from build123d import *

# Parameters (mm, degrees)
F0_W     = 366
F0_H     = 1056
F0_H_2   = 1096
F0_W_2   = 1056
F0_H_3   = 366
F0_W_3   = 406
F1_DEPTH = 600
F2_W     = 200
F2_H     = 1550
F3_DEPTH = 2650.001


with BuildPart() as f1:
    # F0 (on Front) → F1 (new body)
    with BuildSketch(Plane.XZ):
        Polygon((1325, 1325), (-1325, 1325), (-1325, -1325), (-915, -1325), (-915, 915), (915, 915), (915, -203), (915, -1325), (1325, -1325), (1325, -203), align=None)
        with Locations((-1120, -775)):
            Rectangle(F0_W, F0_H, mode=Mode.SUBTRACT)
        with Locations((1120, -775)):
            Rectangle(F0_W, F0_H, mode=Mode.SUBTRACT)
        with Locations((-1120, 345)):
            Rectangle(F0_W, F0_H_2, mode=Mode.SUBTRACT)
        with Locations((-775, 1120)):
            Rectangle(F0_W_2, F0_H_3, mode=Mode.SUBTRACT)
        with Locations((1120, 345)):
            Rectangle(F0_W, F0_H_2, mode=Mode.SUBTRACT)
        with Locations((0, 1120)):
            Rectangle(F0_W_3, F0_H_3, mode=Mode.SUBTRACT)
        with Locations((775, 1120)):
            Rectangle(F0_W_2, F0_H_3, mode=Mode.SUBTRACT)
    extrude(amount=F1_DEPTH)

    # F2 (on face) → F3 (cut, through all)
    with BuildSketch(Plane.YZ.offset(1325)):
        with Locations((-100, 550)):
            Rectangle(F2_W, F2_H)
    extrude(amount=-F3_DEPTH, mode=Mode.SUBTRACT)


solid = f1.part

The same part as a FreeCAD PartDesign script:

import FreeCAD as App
import Part
import Sketcher
Q = App.Units.Quantity

doc = App.newDocument("Part")
params = doc.addObject("Spreadsheet::Sheet", "Params")
for row, (alias, value) in enumerate([
    ("sketch1_width", "2650 mm"),
    ("sketch1_width2", "410 mm"),
    ("sketch1_width3", "366 mm"),
    ("sketch1_width4", "1056 mm"),
    ("sketch1_width5", "406 mm"),
    ("pad1_length", "600 mm"),
    ("sketch2_width", "200 mm"),
    ("sketch2_height", "1550 mm"),
], start=1):
    params.set(f"A{row}", alias)
    params.set(f"B{row}", "=" + value)
    params.setAlias(f"B{row}", alias)

body = doc.addObject("PartDesign::Body", "Body")

# Sketch on XZ plane
sketch1 = doc.addObject("Sketcher::SketchObject", "Sketch")
body.addObject(sketch1)
sketch1.AttachmentSupport = (doc.XZ_Plane, [""])
sketch1.MapMode = "FlatFace"
sketch1.addGeometry(Part.LineSegment(App.Vector(1325, 1325, 0), App.Vector(-1325, 1325, 0)), False)
sketch1.addGeometry(Part.LineSegment(App.Vector(-1325, 1325, 0), App.Vector(-1325, -1325, 0)), False)
sketch1.addGeometry(Part.LineSegment(App.Vector(-1325, -1325, 0), App.Vector(-915, -1325, 0)), False)
sketch1.addGeometry(Part.LineSegment(App.Vector(-915, -1325, 0), App.Vector(-915, 915, 0)), False)
sketch1.addGeometry(Part.LineSegment(App.Vector(-915, 915, 0), App.Vector(915, 915, 0)), False)
sketch1.addGeometry(Part.LineSegment(App.Vector(915, 915, 0), App.Vector(915, -1325, 0)), False)
sketch1.addGeometry(Part.LineSegment(App.Vector(915, -1325, 0), App.Vector(1325, -1325, 0)), False)
sketch1.addGeometry(Part.LineSegment(App.Vector(1325, -1325, 0), App.Vector(1325, 1325, 0)), False)
sketch1.addGeometry(Part.LineSegment(App.Vector(-937, -1303, 0), App.Vector(-1303, -1303, 0)), False)
sketch1.addGeometry(Part.LineSegment(App.Vector(-1303, -1303, 0), App.Vector(-1303, -247, 0)), False)
sketch1.addGeometry(Part.LineSegment(App.Vector(-1303, -247, 0), App.Vector(-937, -247, 0)), False)
sketch1.addGeometry(Part.LineSegment(App.Vector(-937, -247, 0), App.Vector(-937, -1303, 0)), False)
sketch1.addGeometry(Part.LineSegment(App.Vector(1303, -1303, 0), App.Vector(937, -1303, 0)), False)
sketch1.addGeometry(Part.LineSegment(App.Vector(937, -1303, 0), App.Vector(937, -247, 0)), False)
sketch1.addGeometry(Part.LineSegment(App.Vector(937, -247, 0), App.Vector(1303, -247, 0)), False)
sketch1.addGeometry(Part.LineSegment(App.Vector(1303, -247, 0), App.Vector(1303, -1303, 0)), False)
sketch1.addGeometry(Part.LineSegment(App.Vector(-937, -203, 0), App.Vector(-1303, -203, 0)), False)
sketch1.addGeometry(Part.LineSegment(App.Vector(-1303, -203, 0), App.Vector(-1303, 893, 0)), False)
sketch1.addGeometry(Part.LineSegment(App.Vector(-1303, 893, 0), App.Vector(-937, 893, 0)), False)
sketch1.addGeometry(Part.LineSegment(App.Vector(-937, 893, 0), App.Vector(-937, -203, 0)), False)
sketch1.addGeometry(Part.LineSegment(App.Vector(-247, 937, 0), App.Vector(-1303, 937, 0)), False)
sketch1.addGeometry(Part.LineSegment(App.Vector(-1303, 937, 0), App.Vector(-1303, 1303, 0)), False)
sketch1.addGeometry(Part.LineSegment(App.Vector(-1303, 1303, 0), App.Vector(-247, 1303, 0)), False)
sketch1.addGeometry(Part.LineSegment(App.Vector(-247, 1303, 0), App.Vector(-247, 937, 0)), False)
sketch1.addGeometry(Part.LineSegment(App.Vector(1303, -203, 0), App.Vector(937, -203, 0)), False)
sketch1.addGeometry(Part.LineSegment(App.Vector(937, -203, 0), App.Vector(937, 893, 0)), False)
sketch1.addGeometry(Part.LineSegment(App.Vector(937, 893, 0), App.Vector(1303, 893, 0)), False)
sketch1.addGeometry(Part.LineSegment(App.Vector(1303, 893, 0), App.Vector(1303, -203, 0)), False)
sketch1.addGeometry(Part.LineSegment(App.Vector(203, 937, 0), App.Vector(-203, 937, 0)), False)
sketch1.addGeometry(Part.LineSegment(App.Vector(-203, 937, 0), App.Vector(-203, 1303, 0)), False)
sketch1.addGeometry(Part.LineSegment(App.Vector(-203, 1303, 0), App.Vector(203, 1303, 0)), False)
sketch1.addGeometry(Part.LineSegment(App.Vector(203, 1303, 0), App.Vector(203, 937, 0)), False)
sketch1.addGeometry(Part.LineSegment(App.Vector(1303, 937, 0), App.Vector(247, 937, 0)), False)
sketch1.addGeometry(Part.LineSegment(App.Vector(247, 937, 0), App.Vector(247, 1303, 0)), False)
sketch1.addGeometry(Part.LineSegment(App.Vector(247, 1303, 0), App.Vector(1303, 1303, 0)), False)
sketch1.addGeometry(Part.LineSegment(App.Vector(1303, 1303, 0), App.Vector(1303, 937, 0)), False)
sketch1.addConstraint(Sketcher.Constraint("Coincident", 0, 2, 1, 1))
sketch1.addConstraint(Sketcher.Constraint("Coincident", 1, 2, 2, 1))
sketch1.addConstraint(Sketcher.Constraint("Coincident", 2, 2, 3, 1))
sketch1.addConstraint(Sketcher.Constraint("Coincident", 3, 2, 4, 1))
sketch1.addConstraint(Sketcher.Constraint("Coincident", 4, 2, 5, 1))
sketch1.addConstraint(Sketcher.Constraint("Coincident", 5, 2, 6, 1))
sketch1.addConstraint(Sketcher.Constraint("Coincident", 6, 2, 7, 1))
sketch1.addConstraint(Sketcher.Constraint("Coincident", 7, 2, 0, 1))
sketch1.addConstraint(Sketcher.Constraint("Coincident", 8, 2, 9, 1))
sketch1.addConstraint(Sketcher.Constraint("Coincident", 9, 2, 10, 1))
sketch1.addConstraint(Sketcher.Constraint("Coincident", 10, 2, 11, 1))
sketch1.addConstraint(Sketcher.Constraint("Coincident", 11, 2, 8, 1))
sketch1.addConstraint(Sketcher.Constraint("Coincident", 12, 2, 13, 1))
sketch1.addConstraint(Sketcher.Constraint("Coincident", 13, 2, 14, 1))
sketch1.addConstraint(Sketcher.Constraint("Coincident", 14, 2, 15, 1))
sketch1.addConstraint(Sketcher.Constraint("Coincident", 15, 2, 12, 1))
sketch1.addConstraint(Sketcher.Constraint("Coincident", 16, 2, 17, 1))
sketch1.addConstraint(Sketcher.Constraint("Coincident", 17, 2, 18, 1))
sketch1.addConstraint(Sketcher.Constraint("Coincident", 18, 2, 19, 1))
sketch1.addConstraint(Sketcher.Constraint("Coincident", 19, 2, 16, 1))
sketch1.addConstraint(Sketcher.Constraint("Coincident", 20, 2, 21, 1))
sketch1.addConstraint(Sketcher.Constraint("Coincident", 21, 2, 22, 1))
sketch1.addConstraint(Sketcher.Constraint("Coincident", 22, 2, 23, 1))
sketch1.addConstraint(Sketcher.Constraint("Coincident", 23, 2, 20, 1))
sketch1.addConstraint(Sketcher.Constraint("Coincident", 24, 2, 25, 1))
sketch1.addConstraint(Sketcher.Constraint("Coincident", 25, 2, 26, 1))
sketch1.addConstraint(Sketcher.Constraint("Coincident", 26, 2, 27, 1))
sketch1.addConstraint(Sketcher.Constraint("Coincident", 27, 2, 24, 1))
sketch1.addConstraint(Sketcher.Constraint("Coincident", 28, 2, 29, 1))
sketch1.addConstraint(Sketcher.Constraint("Coincident", 29, 2, 30, 1))
sketch1.addConstraint(Sketcher.Constraint("Coincident", 30, 2, 31, 1))
sketch1.addConstraint(Sketcher.Constraint("Coincident", 31, 2, 28, 1))
sketch1.addConstraint(Sketcher.Constraint("Coincident", 32, 2, 33, 1))
sketch1.addConstraint(Sketcher.Constraint("Coincident", 33, 2, 34, 1))
sketch1.addConstraint(Sketcher.Constraint("Coincident", 34, 2, 35, 1))
sketch1.addConstraint(Sketcher.Constraint("Coincident", 35, 2, 32, 1))
sketch1.addConstraint(Sketcher.Constraint("Horizontal", 0))
sketch1.addConstraint(Sketcher.Constraint("Vertical", 1))
sketch1.addConstraint(Sketcher.Constraint("Horizontal", 2))
sketch1.addConstraint(Sketcher.Constraint("Vertical", 3))
sketch1.addConstraint(Sketcher.Constraint("Horizontal", 4))
sketch1.addConstraint(Sketcher.Constraint("Vertical", 5))
sketch1.addConstraint(Sketcher.Constraint("Horizontal", 6))
sketch1.addConstraint(Sketcher.Constraint("Vertical", 7))
sketch1.addConstraint(Sketcher.Constraint("Horizontal", 8))
sketch1.addConstraint(Sketcher.Constraint("Vertical", 9))
sketch1.addConstraint(Sketcher.Constraint("Horizontal", 10))
sketch1.addConstraint(Sketcher.Constraint("Vertical", 11))
sketch1.addConstraint(Sketcher.Constraint("Horizontal", 12))
sketch1.addConstraint(Sketcher.Constraint("Vertical", 13))
sketch1.addConstraint(Sketcher.Constraint("Horizontal", 14))
sketch1.addConstraint(Sketcher.Constraint("Vertical", 15))
sketch1.addConstraint(Sketcher.Constraint("Horizontal", 16))
sketch1.addConstraint(Sketcher.Constraint("Vertical", 17))
sketch1.addConstraint(Sketcher.Constraint("Horizontal", 18))
sketch1.addConstraint(Sketcher.Constraint("Vertical", 19))
sketch1.addConstraint(Sketcher.Constraint("Horizontal", 20))
sketch1.addConstraint(Sketcher.Constraint("Vertical", 21))
sketch1.addConstraint(Sketcher.Constraint("Horizontal", 22))
sketch1.addConstraint(Sketcher.Constraint("Vertical", 23))
sketch1.addConstraint(Sketcher.Constraint("Horizontal", 24))
sketch1.addConstraint(Sketcher.Constraint("Vertical", 25))
sketch1.addConstraint(Sketcher.Constraint("Horizontal", 26))
sketch1.addConstraint(Sketcher.Constraint("Vertical", 27))
sketch1.addConstraint(Sketcher.Constraint("Horizontal", 28))
sketch1.addConstraint(Sketcher.Constraint("Vertical", 29))
sketch1.addConstraint(Sketcher.Constraint("Horizontal", 30))
sketch1.addConstraint(Sketcher.Constraint("Vertical", 31))
sketch1.addConstraint(Sketcher.Constraint("Horizontal", 32))
sketch1.addConstraint(Sketcher.Constraint("Vertical", 33))
sketch1.addConstraint(Sketcher.Constraint("Horizontal", 34))
sketch1.addConstraint(Sketcher.Constraint("Vertical", 35))
sketch1.addConstraint(Sketcher.Constraint("Symmetric", 0, 2, 6, 2, -1, 1))
sketch1.addConstraint(Sketcher.Constraint("Symmetric", 15, 2, 21, 2, -1, 1))
sketch1.addConstraint(Sketcher.Constraint("Symmetric", 8, 2, 34, 2, -1, 1))
sketch1.addConstraint(Sketcher.Constraint("Symmetric", 2, 2, 5, 2, -2))
sketch1.addConstraint(Sketcher.Constraint("Symmetric", 11, 2, 12, 2, -2))
sketch1.addConstraint(Sketcher.Constraint("Symmetric", 9, 2, 14, 2, -2))
sketch1.addConstraint(Sketcher.Constraint("Symmetric", 19, 2, 24, 2, -2))
sketch1.addConstraint(Sketcher.Constraint("Symmetric", 17, 2, 26, 2, -2))
sketch1.addConstraint(Sketcher.Constraint("Symmetric", 23, 2, 32, 2, -2))
sketch1.addConstraint(Sketcher.Constraint("Horizontal", 23, 2, 28, 2))
sketch1.addConstraint(Sketcher.Constraint("Horizontal", 22, 2, 29, 2))
sketch1.addConstraint(Sketcher.Constraint("Vertical", 9, 2, 16, 2))
sketch1.addConstraint(Sketcher.Constraint("Vertical", 11, 2, 18, 2))
sketch1.addConstraint(Sketcher.Constraint("Equal", 0, 1))
sketch1.addConstraint(Sketcher.Constraint("Equal", 34, 9))
sketch1.addConstraint(Sketcher.Constraint("Equal", 26, 21))
sketch1.addConstraint(Sketcher.Constraint("DistanceX", 0, 2, 0, 1, Q("2650 mm")))
sketch1.addConstraint(Sketcher.Constraint("DistanceX", 2, 1, 2, 2, Q("410 mm")))
sketch1.addConstraint(Sketcher.Constraint("DistanceX", 8, 2, 8, 1, Q("366 mm")))
sketch1.addConstraint(Sketcher.Constraint("DistanceX", 20, 2, 20, 1, Q("1056 mm")))
sketch1.addConstraint(Sketcher.Constraint("DistanceX", 28, 2, 28, 1, Q("406 mm")))
sketch1.addConstraint(Sketcher.Constraint("DistanceY", 3, 1, 3, 2, Q("2240 mm")))
sketch1.addConstraint(Sketcher.Constraint("DistanceY", 17, 1, 17, 2, Q("1096 mm")))
sketch1.addConstraint(Sketcher.Constraint("DistanceX", 8, 2, -1, 1, Q("1303 mm")))
sketch1.addConstraint(Sketcher.Constraint("DistanceY", 8, 2, -1, 1, Q("1303 mm")))
sketch1.addConstraint(Sketcher.Constraint("DistanceY", 16, 2, -1, 1, Q("203 mm")))
sketch1.addConstraint(Sketcher.Constraint("DistanceX", 28, 2, -1, 1, Q("203 mm")))
sketch1.setExpression("Constraints[88]", "Params.sketch1_width")
sketch1.setExpression("Constraints[89]", "Params.sketch1_width2")
sketch1.setExpression("Constraints[90]", "Params.sketch1_width3")
sketch1.setExpression("Constraints[91]", "Params.sketch1_width4")
sketch1.setExpression("Constraints[92]", "Params.sketch1_width5")
pad1 = doc.addObject("PartDesign::Pad", "Pad")
body.addObject(pad1)
pad1.Profile = sketch1
pad1.setExpression("Length", "Params.pad1_length")

# Sketch on YZ plane
sketch2 = doc.addObject("Sketcher::SketchObject", "Sketch001")
body.addObject(sketch2)
sketch2.AttachmentSupport = (doc.YZ_Plane, [""])
sketch2.MapMode = "FlatFace"
sketch2.AttachmentOffset = App.Placement(App.Vector(0, 0, 1325), App.Rotation())
sketch2.addGeometry(Part.LineSegment(App.Vector(-200, 1325, 0), App.Vector(-200, -225, 0)), False)
sketch2.addGeometry(Part.LineSegment(App.Vector(-200, -225, 0), App.Vector(0, -225, 0)), False)
sketch2.addGeometry(Part.LineSegment(App.Vector(0, -225, 0), App.Vector(0, 1325, 0)), False)
sketch2.addGeometry(Part.LineSegment(App.Vector(0, 1325, 0), App.Vector(-200, 1325, 0)), False)
sketch2.addConstraint(Sketcher.Constraint("Coincident", 0, 2, 1, 1))
sketch2.addConstraint(Sketcher.Constraint("Coincident", 1, 2, 2, 1))
sketch2.addConstraint(Sketcher.Constraint("Coincident", 2, 2, 3, 1))
sketch2.addConstraint(Sketcher.Constraint("Coincident", 3, 2, 0, 1))
sketch2.addConstraint(Sketcher.Constraint("Vertical", 0))
sketch2.addConstraint(Sketcher.Constraint("Horizontal", 1))
sketch2.addConstraint(Sketcher.Constraint("Vertical", 2))
sketch2.addConstraint(Sketcher.Constraint("Horizontal", 3))
sketch2.addConstraint(Sketcher.Constraint("PointOnObject", 1, 2, -2))
sketch2.addConstraint(Sketcher.Constraint("DistanceX", 1, 1, 1, 2, Q("200 mm")))
sketch2.addConstraint(Sketcher.Constraint("DistanceY", 0, 2, 0, 1, Q("1550 mm")))
sketch2.addConstraint(Sketcher.Constraint("DistanceY", 0, 2, -1, 1, Q("225 mm")))
sketch2.setExpression("Constraints[9]", "Params.sketch2_width")
sketch2.setExpression("Constraints[10]", "Params.sketch2_height")
pocket1 = doc.addObject("PartDesign::Pocket", "Pocket")
body.addObject(pocket1)
pocket1.Profile = sketch2
pocket1.Type = "ThroughAll"

doc.recompute()
